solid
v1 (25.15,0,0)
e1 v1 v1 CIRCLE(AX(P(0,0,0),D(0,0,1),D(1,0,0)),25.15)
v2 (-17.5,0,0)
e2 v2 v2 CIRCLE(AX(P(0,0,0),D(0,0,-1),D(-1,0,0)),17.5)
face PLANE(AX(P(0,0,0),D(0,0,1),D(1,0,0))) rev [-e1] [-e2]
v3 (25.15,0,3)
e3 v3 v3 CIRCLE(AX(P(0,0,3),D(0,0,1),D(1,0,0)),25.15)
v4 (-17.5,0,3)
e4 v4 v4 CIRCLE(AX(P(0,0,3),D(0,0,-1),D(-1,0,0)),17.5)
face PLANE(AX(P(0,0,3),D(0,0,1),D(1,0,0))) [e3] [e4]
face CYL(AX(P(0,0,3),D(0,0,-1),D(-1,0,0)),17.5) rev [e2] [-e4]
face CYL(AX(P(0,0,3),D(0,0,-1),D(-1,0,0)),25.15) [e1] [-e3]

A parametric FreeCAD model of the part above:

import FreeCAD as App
import Part
import Sketcher
from FreeCAD import Vector

doc = App.newDocument("Part")
body = doc.addObject("PartDesign::Body", "Body")

sketch1 = doc.addObject("Sketcher::SketchObject", "Sketch")
body.addObject(sketch1)
sketch1.AttachmentSupport = (doc.XY_Plane, [""])
sketch1.MapMode = "FlatFace"
sketch1.addGeometry(Part.Circle(Vector(0, 0, 0), Vector(0, 0, 1), 25), False)
sketch1.addConstraint(Sketcher.Constraint("Coincident", 0, 3, -1, 1))
sketch1.addConstraint(Sketcher.Constraint("Diameter", 0, 50.3))
pad1 = doc.addObject("PartDesign::Pad", "Pad")
body.addObject(pad1)
pad1.Profile = sketch1
pad1.Length = 3

sketch2 = doc.addObject("Sketcher::SketchObject", "Sketch001")
body.addObject(sketch2)
sketch2.AttachmentSupport = (doc.XY_Plane, [""])
sketch2.MapMode = "FlatFace"
sketch2.addGeometry(Part.Circle(Vector(0, 0, 0), Vector(0, 0, 1), 18), False)
sketch2.addConstraint(Sketcher.Constraint("Coincident", 0, 3, -1, 1))
sketch2.addConstraint(Sketcher.Constraint("Diameter", 0, 35.0))
pocket1 = doc.addObject("PartDesign::Pocket", "Pocket")
body.addObject(pocket1)
pocket1.Profile = sketch2
pocket1.Length = 3
pocket1.Reversed = True

doc.recompute()
